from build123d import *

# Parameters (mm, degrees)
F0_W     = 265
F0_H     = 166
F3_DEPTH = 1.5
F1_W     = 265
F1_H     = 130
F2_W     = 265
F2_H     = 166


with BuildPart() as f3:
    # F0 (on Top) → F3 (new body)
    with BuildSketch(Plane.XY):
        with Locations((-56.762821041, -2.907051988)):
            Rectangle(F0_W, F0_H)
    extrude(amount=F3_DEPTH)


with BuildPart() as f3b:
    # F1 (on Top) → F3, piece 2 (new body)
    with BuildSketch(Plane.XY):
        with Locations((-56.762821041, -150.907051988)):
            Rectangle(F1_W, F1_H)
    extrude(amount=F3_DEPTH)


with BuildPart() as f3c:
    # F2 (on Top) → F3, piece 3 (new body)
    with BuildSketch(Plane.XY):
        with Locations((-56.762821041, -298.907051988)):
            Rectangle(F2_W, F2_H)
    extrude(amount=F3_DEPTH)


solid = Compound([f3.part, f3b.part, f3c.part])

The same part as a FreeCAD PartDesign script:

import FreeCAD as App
import Part
import Sketcher

V = App.Vector


def add_polygon(sketch, points):
    """Adds a closed chain of lines whose ends are joined by coincident constraints."""
    first, n = sketch.GeometryCount, len(points)
    for a, b in zip(points, points[1:] + points[:1]):
        sketch.addGeometry(Part.LineSegment(App.Vector(*a, 0), App.Vector(*b, 0)), False)
    for i in range(n):
        sketch.addConstraint(Sketcher.Constraint("Coincident", first + i, 2, first + (i + 1) % n, 1))

doc = App.newDocument("Part")
body = doc.addObject("PartDesign::Body", "Body")

# Sketch on XY plane
sketch1 = body.newObject("Sketcher::SketchObject", "Sketch")
sketch1.AttachmentSupport = (doc.getObject("XY_Plane"), [""])
sketch1.MapMode = "FlatFace"
add_polygon(sketch1, [(-189, 80), (-189, -86), (76, -86), (76, 80)])  # lines 0-3
sketch1.addConstraint([
    Sketcher.Constraint("Vertical", 0),
    Sketcher.Constraint("Horizontal", 1),
    Sketcher.Constraint("Vertical", 2),
    Sketcher.Constraint("Horizontal", 3),
    Sketcher.Constraint("DistanceX", 1, 1, 1, 2, 265.0),
    Sketcher.Constraint("DistanceY", 0, 2, 0, 1, 166.0),
    Sketcher.Constraint("DistanceX", 0, 2, -1, 1, 189.262821),
    Sketcher.Constraint("DistanceY", 0, 2, -1, 1, 85.907052),
])
pad1 = body.newObject("PartDesign::Pad", "Pad")
pad1.Profile = sketch1
pad1.Length = 1.5
body2 = doc.addObject("PartDesign::Body", "Body001")

# Sketch on XY plane
sketch2 = body2.newObject("Sketcher::SketchObject", "Sketch001")
sketch2.AttachmentSupport = (doc.getObject("XY_Plane001"), [""])
sketch2.MapMode = "FlatFace"
add_polygon(sketch2, [(-189, -86), (-189, -216), (76, -216), (76, -86)])  # lines 0-3
sketch2.addConstraint([
    Sketcher.Constraint("Vertical", 0),
    Sketcher.Constraint("Horizontal", 1),
    Sketcher.Constraint("Vertical", 2),
    Sketcher.Constraint("Horizontal", 3),
    Sketcher.Constraint("DistanceX", 1, 1, 1, 2, 265.0),
    Sketcher.Constraint("DistanceY", 0, 2, 0, 1, 130.0),
    Sketcher.Constraint("DistanceX", 0, 2, -1, 1, 189.262821),
    Sketcher.Constraint("DistanceY", 0, 2, -1, 1, 215.907052),
])
pad2 = body2.newObject("PartDesign::Pad", "Pad001")
pad2.Profile = sketch2
pad2.Length = 1.5
body3 = doc.addObject("PartDesign::Body", "Body002")

# Sketch on XY plane
sketch3 = body3.newObject("Sketcher::SketchObject", "Sketch002")
sketch3.AttachmentSupport = (doc.getObject("XY_Plane002"), [""])
sketch3.MapMode = "FlatFace"
add_polygon(sketch3, [(-189, -216), (-189, -382), (76, -382), (76, -216)])  # lines 0-3
sketch3.addConstraint([
    Sketcher.Constraint("Vertical", 0),
    Sketcher.Constraint("Horizontal", 1),
    Sketcher.Constraint("Vertical", 2),
    Sketcher.Constraint("Horizontal", 3),
    Sketcher.Constraint("DistanceX", 1, 1, 1, 2, 265.0),
    Sketcher.Constraint("DistanceY", 0, 2, 0, 1, 166.0),
    Sketcher.Constraint("DistanceX", 0, 2, -1, 1, 189.262821),
    Sketcher.Constraint("DistanceY", 0, 2, -1, 1, 381.907052),
])
pad3 = body3.newObject("PartDesign::Pad", "Pad002")
pad3.Profile = sketch3
pad3.Length = 1.5

doc.recompute()
